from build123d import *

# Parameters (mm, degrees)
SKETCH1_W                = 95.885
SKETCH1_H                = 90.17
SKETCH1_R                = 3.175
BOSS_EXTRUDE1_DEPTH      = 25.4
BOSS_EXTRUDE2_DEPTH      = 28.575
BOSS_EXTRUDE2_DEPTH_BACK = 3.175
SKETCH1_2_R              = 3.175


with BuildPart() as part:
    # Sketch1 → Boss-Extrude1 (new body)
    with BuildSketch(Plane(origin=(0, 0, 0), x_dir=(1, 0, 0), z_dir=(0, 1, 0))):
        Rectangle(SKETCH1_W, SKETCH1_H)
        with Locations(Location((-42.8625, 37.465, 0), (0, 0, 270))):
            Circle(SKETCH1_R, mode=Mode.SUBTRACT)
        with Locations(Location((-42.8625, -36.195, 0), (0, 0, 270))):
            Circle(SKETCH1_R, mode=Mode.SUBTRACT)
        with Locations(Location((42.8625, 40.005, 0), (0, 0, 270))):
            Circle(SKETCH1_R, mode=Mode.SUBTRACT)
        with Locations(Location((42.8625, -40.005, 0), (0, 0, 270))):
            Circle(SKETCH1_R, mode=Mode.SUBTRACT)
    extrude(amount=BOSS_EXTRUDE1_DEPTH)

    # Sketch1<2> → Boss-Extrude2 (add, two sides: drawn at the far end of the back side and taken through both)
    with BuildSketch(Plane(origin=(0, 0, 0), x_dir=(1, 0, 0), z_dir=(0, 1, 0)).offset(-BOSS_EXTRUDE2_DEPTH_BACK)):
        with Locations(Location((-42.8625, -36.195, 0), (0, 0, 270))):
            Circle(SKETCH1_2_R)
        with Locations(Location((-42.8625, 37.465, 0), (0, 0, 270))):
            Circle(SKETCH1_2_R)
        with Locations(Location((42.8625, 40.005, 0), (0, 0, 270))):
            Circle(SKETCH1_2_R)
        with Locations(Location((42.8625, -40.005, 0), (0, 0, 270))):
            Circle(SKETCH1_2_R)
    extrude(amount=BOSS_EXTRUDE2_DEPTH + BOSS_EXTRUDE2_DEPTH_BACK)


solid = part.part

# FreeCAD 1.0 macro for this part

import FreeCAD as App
import Part
import Sketcher
Q = App.Units.Quantity


def add_polygon(sketch, points):
    """Adds a closed chain of lines whose ends are joined by coincident constraints."""
    first, n = sketch.GeometryCount, len(points)
    for a, b in zip(points, points[1:] + points[:1]):
        sketch.addGeometry(Part.LineSegment(App.Vector(*a, 0), App.Vector(*b, 0)), False)
    for i in range(n):
        sketch.addConstraint(Sketcher.Constraint("Coincident", first + i, 2, first + (i + 1) % n, 1))

doc = App.newDocument("Part")
body = doc.addObject("PartDesign::Body", "Body")

sketch1 = body.newObject("Sketcher::SketchObject", "Sketch")
sketch1.AttachmentSupport = (doc.getObject("XZ_Plane"), [""])
sketch1.MapMode = "FlatFace"
add_polygon(sketch1, [(-47.9, -45.1), (-47.9, 45.1), (47.9, 45.1), (47.9, -45.1)])
sketch1.addGeometry(Part.Circle(App.Vector(-42.9, 36.2, 0), App.Vector(0, 0, 1), 3.2), False)
sketch1.addGeometry(Part.Circle(App.Vector(42.9, 40, 0), App.Vector(0, 0, 1), 3.2), False)
sketch1.addGeometry(Part.Circle(App.Vector(-42.9, -37.5, 0), App.Vector(0, 0, 1), 3.2), False)
sketch1.addGeometry(Part.Circle(App.Vector(42.9, -40, 0), App.Vector(0, 0, 1), 3.2), False)
sketch1.addConstraint([
    Sketcher.Constraint("Vertical", 0),
    Sketcher.Constraint("Horizontal", 1),
    Sketcher.Constraint("Vertical", 2),
    Sketcher.Constraint("Horizontal", 3),
    Sketcher.Constraint("Equal", 4, 5),
    Sketcher.Constraint("Equal", 5, 6),
    Sketcher.Constraint("Equal", 6, 7),
    Sketcher.Constraint("Symmetric", 0, 2, 2, 2, -1, 1),
    Sketcher.Constraint("Symmetric", 5, 3, 7, 3, -1),
    Sketcher.Constraint("Vertical", 4, 3, 6, 3),
    Sketcher.Constraint("Diameter", 4, Q("0.25 in")),
    Sketcher.Constraint("DistanceY", 7, 3, 4, 3, Q("3 in")),
    Sketcher.Constraint("DistanceY", 0, 1, 0, 2, Q("3.55 in")),
    Sketcher.Constraint("DistanceY", 6, 3, 4, 3, Q("2.9 in")),
    Sketcher.Constraint("DistanceX", 0, 2, 4, 3, Q("0.2 in")),
    Sketcher.Constraint("DistanceY", 5, 3, 0, 2, Q("0.2 in")),
    Sketcher.Constraint("DistanceX", 5, 3, 1, 2, Q("0.2 in")),
    Sketcher.Constraint("DistanceX", 1, 1, 1, 2, Q("3.775 in")),
])
pad1 = body.newObject("PartDesign::Pad", "Pad")
pad1.Profile = sketch1
pad1.Length = Q("1 in")
pad1.Reversed = True

sketch2 = body.newObject("Sketcher::SketchObject", "Sketch001")
sketch2.AttachmentSupport = (doc.getObject("XZ_Plane"), [""])
sketch2.MapMode = "FlatFace"
sketch2.addGeometry([
    Part.Circle(App.Vector(-42.9, 36.2, 0), App.Vector(0, 0, 1), 3.2),
    Part.Circle(App.Vector(-42.9, -37.5, 0), App.Vector(0, 0, 1), 3.2),
    Part.Circle(App.Vector(42.9, -40, 0), App.Vector(0, 0, 1), 3.2),
    Part.Circle(App.Vector(42.9, 40, 0), App.Vector(0, 0, 1), 3.2),
], False)
sketch2.addConstraint([
    Sketcher.Constraint("Equal", 0, 1),
    Sketcher.Constraint("Equal", 1, 2),
    Sketcher.Constraint("Equal", 2, 3),
    Sketcher.Constraint("Symmetric", 2, 3, 3, 3, -1),
    Sketcher.Constraint("Vertical", 0, 3, 1, 3),
    Sketcher.Constraint("Diameter", 0, Q("0.25 in")),
    Sketcher.Constraint("DistanceY", 2, 3, 0, 3, Q("3 in")),
    Sketcher.Constraint("DistanceY", 1, 3, 0, 3, Q("2.9 in")),
    Sketcher.Constraint("DistanceY", 2, 3, 3, 3, Q("3.15 in")),
    Sketcher.Constraint("DistanceX", 0, 3, -1, 1, Q("1.6875 in")),
    Sketcher.Constraint("DistanceX", -1, 1, 2, 3, Q("1.6875 in")),
])
pad2 = body.newObject("PartDesign::Pad", "Pad001")
pad2.Profile = sketch2
pad2.Type = "TwoLengths"
pad2.Length = Q("1.125 in")
pad2.Length2 = Q("0.125 in")
pad2.Reversed = True

doc.recompute()
